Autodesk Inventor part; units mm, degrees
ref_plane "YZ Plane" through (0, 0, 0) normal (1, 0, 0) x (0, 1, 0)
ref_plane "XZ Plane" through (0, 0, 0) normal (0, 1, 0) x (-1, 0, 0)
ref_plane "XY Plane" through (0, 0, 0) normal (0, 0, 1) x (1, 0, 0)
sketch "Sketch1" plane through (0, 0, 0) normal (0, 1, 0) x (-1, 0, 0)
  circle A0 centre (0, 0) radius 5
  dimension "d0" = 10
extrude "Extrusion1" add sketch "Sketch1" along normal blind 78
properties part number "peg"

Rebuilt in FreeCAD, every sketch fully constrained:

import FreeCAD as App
import Part
import Sketcher

doc = App.newDocument("Part")
body = doc.addObject("PartDesign::Body", "Body")

sketch1 = body.newObject("Sketcher::SketchObject", "Sketch")
sketch1.AttachmentSupport = (doc.getObject("XZ_Plane"), [""])
sketch1.MapMode = "FlatFace"
sketch1.addGeometry(Part.Circle(App.Vector(0, 0, 0), App.Vector(0, 0, 1), 5), False)
sketch1.addConstraint(Sketcher.Constraint("Coincident", 0, 3, -1, 1))
sketch1.addConstraint(Sketcher.Constraint("Diameter", 0, 10.0))
pad1 = body.newObject("PartDesign::Pad", "Pad")
pad1.Profile = sketch1
pad1.Length = 78
pad1.Reversed = True

doc.recompute()
